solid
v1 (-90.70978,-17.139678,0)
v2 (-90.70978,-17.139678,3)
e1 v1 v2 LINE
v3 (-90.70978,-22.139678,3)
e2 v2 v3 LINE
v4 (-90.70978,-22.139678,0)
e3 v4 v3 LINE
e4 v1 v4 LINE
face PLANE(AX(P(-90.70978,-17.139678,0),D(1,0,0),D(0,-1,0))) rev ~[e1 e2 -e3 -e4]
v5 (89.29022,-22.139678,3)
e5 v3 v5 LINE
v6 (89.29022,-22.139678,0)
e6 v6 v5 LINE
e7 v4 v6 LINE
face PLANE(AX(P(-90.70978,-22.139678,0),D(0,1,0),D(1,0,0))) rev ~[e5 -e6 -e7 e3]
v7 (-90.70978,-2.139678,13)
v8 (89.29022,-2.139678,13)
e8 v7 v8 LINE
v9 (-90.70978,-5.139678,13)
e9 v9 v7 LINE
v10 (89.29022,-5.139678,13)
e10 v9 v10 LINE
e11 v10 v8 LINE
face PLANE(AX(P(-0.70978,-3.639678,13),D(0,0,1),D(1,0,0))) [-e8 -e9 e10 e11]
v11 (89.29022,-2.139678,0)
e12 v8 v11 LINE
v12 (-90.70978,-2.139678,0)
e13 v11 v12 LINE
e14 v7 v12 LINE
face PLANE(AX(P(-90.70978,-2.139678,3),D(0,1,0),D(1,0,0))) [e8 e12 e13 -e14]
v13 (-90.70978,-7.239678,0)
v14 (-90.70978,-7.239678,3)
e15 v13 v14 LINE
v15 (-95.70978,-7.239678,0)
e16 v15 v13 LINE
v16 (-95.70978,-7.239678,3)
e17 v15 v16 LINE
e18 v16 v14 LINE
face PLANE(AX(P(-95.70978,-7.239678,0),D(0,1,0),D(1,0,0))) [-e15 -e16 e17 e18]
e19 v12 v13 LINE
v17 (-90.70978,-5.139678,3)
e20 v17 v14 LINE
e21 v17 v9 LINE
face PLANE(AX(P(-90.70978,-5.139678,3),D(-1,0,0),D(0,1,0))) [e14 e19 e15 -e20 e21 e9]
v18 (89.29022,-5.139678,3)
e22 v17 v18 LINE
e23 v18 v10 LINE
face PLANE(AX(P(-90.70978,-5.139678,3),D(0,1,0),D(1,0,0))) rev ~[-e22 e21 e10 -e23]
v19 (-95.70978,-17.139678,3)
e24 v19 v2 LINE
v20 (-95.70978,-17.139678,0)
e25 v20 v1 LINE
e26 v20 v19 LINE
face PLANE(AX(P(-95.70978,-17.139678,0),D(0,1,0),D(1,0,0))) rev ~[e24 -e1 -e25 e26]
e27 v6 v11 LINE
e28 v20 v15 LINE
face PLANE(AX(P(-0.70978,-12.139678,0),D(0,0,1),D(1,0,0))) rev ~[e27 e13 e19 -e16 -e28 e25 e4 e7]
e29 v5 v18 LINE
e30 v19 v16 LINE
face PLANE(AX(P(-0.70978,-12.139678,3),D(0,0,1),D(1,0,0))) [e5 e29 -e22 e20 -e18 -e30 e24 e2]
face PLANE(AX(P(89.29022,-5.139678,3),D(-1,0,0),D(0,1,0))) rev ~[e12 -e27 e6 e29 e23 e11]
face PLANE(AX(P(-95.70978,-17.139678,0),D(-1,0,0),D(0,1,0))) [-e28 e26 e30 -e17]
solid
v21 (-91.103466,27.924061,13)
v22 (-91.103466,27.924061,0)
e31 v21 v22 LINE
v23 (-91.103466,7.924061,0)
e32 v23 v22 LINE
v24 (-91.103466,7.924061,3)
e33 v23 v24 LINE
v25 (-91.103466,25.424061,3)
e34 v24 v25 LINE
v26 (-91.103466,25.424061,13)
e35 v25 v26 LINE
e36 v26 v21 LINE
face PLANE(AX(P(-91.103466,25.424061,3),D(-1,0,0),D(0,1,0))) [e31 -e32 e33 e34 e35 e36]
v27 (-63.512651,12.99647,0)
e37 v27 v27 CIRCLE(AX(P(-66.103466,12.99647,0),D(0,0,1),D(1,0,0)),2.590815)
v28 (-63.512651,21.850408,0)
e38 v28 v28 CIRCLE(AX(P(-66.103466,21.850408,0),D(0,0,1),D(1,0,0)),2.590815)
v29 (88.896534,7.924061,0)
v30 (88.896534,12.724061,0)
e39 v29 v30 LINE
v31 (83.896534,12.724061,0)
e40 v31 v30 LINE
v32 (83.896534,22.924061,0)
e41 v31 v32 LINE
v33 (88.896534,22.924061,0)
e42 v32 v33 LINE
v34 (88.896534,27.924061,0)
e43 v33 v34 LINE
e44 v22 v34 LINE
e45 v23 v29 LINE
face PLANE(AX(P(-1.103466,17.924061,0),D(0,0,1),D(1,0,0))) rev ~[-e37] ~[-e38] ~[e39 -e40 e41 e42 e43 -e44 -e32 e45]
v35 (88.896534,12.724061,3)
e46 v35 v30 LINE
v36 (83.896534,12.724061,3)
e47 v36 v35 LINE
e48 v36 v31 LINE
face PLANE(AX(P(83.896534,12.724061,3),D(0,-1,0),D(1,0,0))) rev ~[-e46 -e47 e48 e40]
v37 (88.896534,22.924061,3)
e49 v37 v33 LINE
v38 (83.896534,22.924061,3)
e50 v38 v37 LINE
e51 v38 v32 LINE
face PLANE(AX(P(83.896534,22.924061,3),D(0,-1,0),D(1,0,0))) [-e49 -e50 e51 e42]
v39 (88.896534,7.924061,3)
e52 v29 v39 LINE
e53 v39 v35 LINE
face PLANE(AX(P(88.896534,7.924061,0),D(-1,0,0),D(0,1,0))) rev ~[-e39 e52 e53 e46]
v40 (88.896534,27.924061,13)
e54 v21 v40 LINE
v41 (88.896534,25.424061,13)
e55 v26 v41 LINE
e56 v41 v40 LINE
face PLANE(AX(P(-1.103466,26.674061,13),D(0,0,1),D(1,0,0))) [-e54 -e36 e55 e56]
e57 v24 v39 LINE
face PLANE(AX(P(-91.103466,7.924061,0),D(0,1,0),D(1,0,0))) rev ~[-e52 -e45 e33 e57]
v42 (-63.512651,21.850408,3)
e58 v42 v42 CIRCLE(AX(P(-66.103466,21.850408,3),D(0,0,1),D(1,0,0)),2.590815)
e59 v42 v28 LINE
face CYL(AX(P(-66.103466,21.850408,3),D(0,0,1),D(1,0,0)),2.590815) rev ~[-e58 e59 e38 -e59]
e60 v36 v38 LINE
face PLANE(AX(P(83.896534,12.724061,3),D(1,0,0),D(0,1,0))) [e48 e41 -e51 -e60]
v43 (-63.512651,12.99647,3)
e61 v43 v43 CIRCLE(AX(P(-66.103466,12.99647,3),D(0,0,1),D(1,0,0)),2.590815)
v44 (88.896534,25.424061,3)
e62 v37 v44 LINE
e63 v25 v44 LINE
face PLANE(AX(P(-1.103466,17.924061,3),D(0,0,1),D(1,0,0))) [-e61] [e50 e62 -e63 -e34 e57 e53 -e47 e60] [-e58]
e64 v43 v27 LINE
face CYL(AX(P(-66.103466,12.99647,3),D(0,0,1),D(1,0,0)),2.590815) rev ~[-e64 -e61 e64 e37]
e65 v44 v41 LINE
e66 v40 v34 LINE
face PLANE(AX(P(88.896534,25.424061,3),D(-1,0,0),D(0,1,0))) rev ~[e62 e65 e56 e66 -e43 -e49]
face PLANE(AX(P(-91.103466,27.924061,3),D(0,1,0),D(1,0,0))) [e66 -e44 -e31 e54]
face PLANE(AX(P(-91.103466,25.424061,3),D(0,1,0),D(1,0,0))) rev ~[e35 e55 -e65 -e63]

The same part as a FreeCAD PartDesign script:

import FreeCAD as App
import Part
import Sketcher

V = App.Vector
Q = App.Units.Quantity

doc = App.newDocument("Part")
params = doc.addObject("Spreadsheet::Sheet", "Params")
for row, (alias, value) in enumerate([
    ("sketch1_width", "180 mm"),
    ("sketch1_width2", "5 mm"),
    ("sketch1_height", "20 mm"),
    ("sketch1_height2", "5.1 mm"),
    ("pad1_length", "3 mm"),
    ("sketch2_width", "5 mm"),
    ("sketch2_height", "10.2 mm"),
    ("pocket1_length", "3 mm"),
    ("sketch3_width", "180 mm"),
    ("sketch3_height", "2.5 mm"),
    ("pad2_length", "10 mm"),
    ("sketch4_width", "180 mm"),
    ("sketch4_height", "3 mm"),
    ("pad3_length", "10 mm"),
    ("pocket2_length", "3 mm"),
], start=1):
    params.set(f"A{row}", alias)
    params.set(f"B{row}", "=" + value)
    params.setAlias(f"B{row}", alias)

body = doc.addObject("PartDesign::Body", "Body")
body.AllowCompound = True

sketch1 = body.newObject("Sketcher::SketchObject", "Sketch")
sketch1.AttachmentSupport = (doc.getObject("XY_Plane"), [""])
sketch1.MapMode = "FlatFace"
sketch1.addGeometry(Part.LineSegment(V(-91, 28, 0), V(-91, 8, 0)), False)
sketch1.addGeometry(Part.LineSegment(V(-91, 8, 0), V(89, 8, 0)), False)
sketch1.addGeometry(Part.LineSegment(V(89, 8, 0), V(89, 28, 0)), False)
sketch1.addGeometry(Part.LineSegment(V(89, 28, 0), V(-91, 28, 0)), False)
sketch1.addGeometry(Part.LineSegment(V(89, -2, 0), V(-91, -2, 0)), False)
sketch1.addGeometry(Part.LineSegment(V(-91, -2, 0), V(-91, -7, 0)), False)
sketch1.addGeometry(Part.LineSegment(V(-91, -7, 0), V(-96, -7, 0)), False)
sketch1.addGeometry(Part.LineSegment(V(-96, -7, 0), V(-96, -17, 0)), False)
sketch1.addGeometry(Part.LineSegment(V(-96, -17, 0), V(-91, -17, 0)), False)
sketch1.addGeometry(Part.LineSegment(V(-91, -17, 0), V(-91, -22, 0)), False)
sketch1.addGeometry(Part.LineSegment(V(-91, -22, 0), V(89, -22, 0)), False)
sketch1.addGeometry(Part.LineSegment(V(89, -22, 0), V(89, -2, 0)), False)
sketch1.addConstraint(Sketcher.Constraint("Coincident", 0, 2, 1, 1))
sketch1.addConstraint(Sketcher.Constraint("Coincident", 1, 2, 2, 1))
sketch1.addConstraint(Sketcher.Constraint("Coincident", 2, 2, 3, 1))
sketch1.addConstraint(Sketcher.Constraint("Coincident", 3, 2, 0, 1))
sketch1.addConstraint(Sketcher.Constraint("Coincident", 4, 2, 5, 1))
sketch1.addConstraint(Sketcher.Constraint("Coincident", 5, 2, 6, 1))
sketch1.addConstraint(Sketcher.Constraint("Coincident", 6, 2, 7, 1))
sketch1.addConstraint(Sketcher.Constraint("Coincident", 7, 2, 8, 1))
sketch1.addConstraint(Sketcher.Constraint("Coincident", 8, 2, 9, 1))
sketch1.addConstraint(Sketcher.Constraint("Coincident", 9, 2, 10, 1))
sketch1.addConstraint(Sketcher.Constraint("Coincident", 10, 2, 11, 1))
sketch1.addConstraint(Sketcher.Constraint("Coincident", 11, 2, 4, 1))
sketch1.addConstraint(Sketcher.Constraint("Vertical", 0))
sketch1.addConstraint(Sketcher.Constraint("Horizontal", 1))
sketch1.addConstraint(Sketcher.Constraint("Vertical", 2))
sketch1.addConstraint(Sketcher.Constraint("Horizontal", 3))
sketch1.addConstraint(Sketcher.Constraint("Horizontal", 4))
sketch1.addConstraint(Sketcher.Constraint("Vertical", 5))
sketch1.addConstraint(Sketcher.Constraint("Horizontal", 6))
sketch1.addConstraint(Sketcher.Constraint("Vertical", 7))
sketch1.addConstraint(Sketcher.Constraint("Horizontal", 8))
sketch1.addConstraint(Sketcher.Constraint("Vertical", 9))
sketch1.addConstraint(Sketcher.Constraint("Horizontal", 10))
sketch1.addConstraint(Sketcher.Constraint("Vertical", 11))
sketch1.addConstraint(Sketcher.Constraint("Vertical", 5, 2, 8, 2))
sketch1.addConstraint(Sketcher.Constraint("Equal", 3, 4))
sketch1.addConstraint(Sketcher.Constraint("Equal", 8, 9))
sketch1.addConstraint(Sketcher.Constraint("Equal", 2, 11))
sketch1.addConstraint(Sketcher.Constraint("DistanceX", 1, 1, 1, 2, Q("180 mm")))
sketch1.addConstraint(Sketcher.Constraint("DistanceX", 6, 2, 6, 1, Q("5 mm")))
sketch1.addConstraint(Sketcher.Constraint("DistanceY", 0, 2, 0, 1, Q("20 mm")))
sketch1.addConstraint(Sketcher.Constraint("DistanceY", 5, 2, 5, 1, Q("5.1 mm")))
sketch1.addConstraint(Sketcher.Constraint("DistanceY", -1, 1, 0, 2, Q("7.924061 mm")))
sketch1.addConstraint(Sketcher.Constraint("DistanceX", 4, 2, -1, 1, Q("90.70978 mm")))
sketch1.addConstraint(Sketcher.Constraint("DistanceY", 4, 2, -1, 1, Q("2.139678 mm")))
sketch1.addConstraint(Sketcher.Constraint("DistanceX", 0, 2, -1, 1, Q("91.103466 mm")))
sketch1.setExpression("Constraints[28]", "Params.sketch1_width")
sketch1.setExpression("Constraints[29]", "Params.sketch1_width2")
sketch1.setExpression("Constraints[30]", "Params.sketch1_height")
sketch1.setExpression("Constraints[31]", "Params.sketch1_height2")
pad1 = body.newObject("PartDesign::Pad", "Pad")
pad1.Profile = sketch1
pad1.setExpression("Length", "Params.pad1_length")

sketch2 = body.newObject("Sketcher::SketchObject", "Sketch001")
sketch2.AttachmentSupport = (doc.getObject("XY_Plane"), [""])
sketch2.MapMode = "FlatFace"
sketch2.AttachmentOffset = App.Placement(V(0, 0, 3), App.Rotation())
sketch2.addGeometry(Part.LineSegment(V(84, 23, 0), V(84, 13, 0)), False)
sketch2.addGeometry(Part.LineSegment(V(84, 13, 0), V(89, 13, 0)), False)
sketch2.addGeometry(Part.LineSegment(V(89, 13, 0), V(89, 23, 0)), False)
sketch2.addGeometry(Part.LineSegment(V(89, 23, 0), V(84, 23, 0)), False)
sketch2.addConstraint(Sketcher.Constraint("Coincident", 0, 2, 1, 1))
sketch2.addConstraint(Sketcher.Constraint("Coincident", 1, 2, 2, 1))
sketch2.addConstraint(Sketcher.Constraint("Coincident", 2, 2, 3, 1))
sketch2.addConstraint(Sketcher.Constraint("Coincident", 3, 2, 0, 1))
sketch2.addConstraint(Sketcher.Constraint("Vertical", 0))
sketch2.addConstraint(Sketcher.Constraint("Horizontal", 1))
sketch2.addConstraint(Sketcher.Constraint("Vertical", 2))
sketch2.addConstraint(Sketcher.Constraint("Horizontal", 3))
sketch2.addConstraint(Sketcher.Constraint("DistanceX", 1, 1, 1, 2, Q("5 mm")))
sketch2.addConstraint(Sketcher.Constraint("DistanceY", 0, 2, 0, 1, Q("10.2 mm")))
sketch2.addConstraint(Sketcher.Constraint("DistanceY", -1, 1, 0, 2, Q("12.724061 mm")))
sketch2.addConstraint(Sketcher.Constraint("DistanceX", -1, 1, 0, 2, Q("83.896534 mm")))
sketch2.setExpression("Constraints[8]", "Params.sketch2_width")
sketch2.setExpression("Constraints[9]", "Params.sketch2_height")
pocket1 = body.newObject("PartDesign::Pocket", "Pocket")
pocket1.Profile = sketch2
pocket1.setExpression("Length", "Params.pocket1_length")

sketch3 = body.newObject("Sketcher::SketchObject", "Sketch002")
sketch3.AttachmentSupport = (doc.getObject("XY_Plane"), [""])
sketch3.MapMode = "FlatFace"
sketch3.AttachmentOffset = App.Placement(V(0, 0, 3), App.Rotation())
sketch3.addGeometry(Part.LineSegment(V(-91.1, 27.9, 0), V(-91.1, 25.4, 0)), False)
sketch3.addGeometry(Part.LineSegment(V(-91.1, 25.4, 0), V(88.9, 25.4, 0)), False)
sketch3.addGeometry(Part.LineSegment(V(88.9, 25.4, 0), V(88.9, 27.9, 0)), False)
sketch3.addGeometry(Part.LineSegment(V(88.9, 27.9, 0), V(-91.1, 27.9, 0)), False)
sketch3.addConstraint(Sketcher.Constraint("Coincident", 0, 2, 1, 1))
sketch3.addConstraint(Sketcher.Constraint("Coincident", 1, 2, 2, 1))
sketch3.addConstraint(Sketcher.Constraint("Coincident", 2, 2, 3, 1))
sketch3.addConstraint(Sketcher.Constraint("Coincident", 3, 2, 0, 1))
sketch3.addConstraint(Sketcher.Constraint("Vertical", 0))
sketch3.addConstraint(Sketcher.Constraint("Horizontal", 1))
sketch3.addConstraint(Sketcher.Constraint("Vertical", 2))
sketch3.addConstraint(Sketcher.Constraint("Horizontal", 3))
sketch3.addConstraint(Sketcher.Constraint("DistanceX", 1, 1, 1, 2, Q("180 mm")))
sketch3.addConstraint(Sketcher.Constraint("DistanceY", 0, 2, 0, 1, Q("2.5 mm")))
sketch3.addConstraint(Sketcher.Constraint("DistanceY", -1, 1, 0, 2, Q("25.424061 mm")))
sketch3.addConstraint(Sketcher.Constraint("DistanceX", 0, 2, -1, 1, Q("91.103466 mm")))
sketch3.setExpression("Constraints[8]", "Params.sketch3_width")
sketch3.setExpression("Constraints[9]", "Params.sketch3_height")
pad2 = body.newObject("PartDesign::Pad", "Pad001")
pad2.Profile = sketch3
pad2.setExpression("Length", "Params.pad2_length")

sketch4 = body.newObject("Sketcher::SketchObject", "Sketch003")
sketch4.AttachmentSupport = (doc.getObject("XY_Plane"), [""])
sketch4.MapMode = "FlatFace"
sketch4.AttachmentOffset = App.Placement(V(0, 0, 3), App.Rotation())
sketch4.addGeometry(Part.LineSegment(V(-90.7, -2.1, 0), V(-90.7, -5.1, 0)), False)
sketch4.addGeometry(Part.LineSegment(V(-90.7, -5.1, 0), V(89.3, -5.1, 0)), False)
sketch4.addGeometry(Part.LineSegment(V(89.3, -5.1, 0), V(89.3, -2.1, 0)), False)
sketch4.addGeometry(Part.LineSegment(V(89.3, -2.1, 0), V(-90.7, -2.1, 0)), False)
sketch4.addConstraint(Sketcher.Constraint("Coincident", 0, 2, 1, 1))
sketch4.addConstraint(Sketcher.Constraint("Coincident", 1, 2, 2, 1))
sketch4.addConstraint(Sketcher.Constraint("Coincident", 2, 2, 3, 1))
sketch4.addConstraint(Sketcher.Constraint("Coincident", 3, 2, 0, 1))
sketch4.addConstraint(Sketcher.Constraint("Vertical", 0))
sketch4.addConstraint(Sketcher.Constraint("Horizontal", 1))
sketch4.addConstraint(Sketcher.Constraint("Vertical", 2))
sketch4.addConstraint(Sketcher.Constraint("Horizontal", 3))
sketch4.addConstraint(Sketcher.Constraint("DistanceX", 1, 1, 1, 2, Q("180 mm")))
sketch4.addConstraint(Sketcher.Constraint("DistanceY", 0, 2, 0, 1, Q("3 mm")))
sketch4.addConstraint(Sketcher.Constraint("DistanceX", 0, 2, -1, 1, Q("90.70978 mm")))
sketch4.addConstraint(Sketcher.Constraint("DistanceY", 2, 2, -1, 1, Q("2.139678 mm")))
sketch4.setExpression("Constraints[8]", "Params.sketch4_width")
sketch4.setExpression("Constraints[9]", "Params.sketch4_height")
pad3 = body.newObject("PartDesign::Pad", "Pad002")
pad3.Profile = sketch4
pad3.setExpression("Length", "Params.pad3_length")

sketch5 = body.newObject("Sketcher::SketchObject", "Sketch004")
sketch5.AttachmentSupport = (doc.getObject("XY_Plane"), [""])
sketch5.MapMode = "FlatFace"
sketch5.AttachmentOffset = App.Placement(V(0, 0, 3), App.Rotation())
sketch5.addGeometry(Part.Circle(V(-66.1, 21.9, 0), V(0, 0, 1), 2.6), False)
sketch5.addGeometry(Part.Circle(V(-66.1, 13, 0), V(0, 0, 1), 2.6), False)
sketch5.addConstraint(Sketcher.Constraint("Equal", 0, 1))
sketch5.addConstraint(Sketcher.Constraint("Vertical", 0, 3, 1, 3))
sketch5.addConstraint(Sketcher.Constraint("Diameter", 0, Q("5.18163 mm")))
sketch5.addConstraint(Sketcher.Constraint("DistanceY", -1, 1, 0, 3, Q("21.850408 mm")))
sketch5.addConstraint(Sketcher.Constraint("DistanceY", -1, 1, 1, 3, Q("12.99647 mm")))
sketch5.addConstraint(Sketcher.Constraint("DistanceX", 0, 3, -1, 1, Q("66.103466 mm")))
pocket2 = body.newObject("PartDesign::Pocket", "Pocket001")
pocket2.Profile = sketch5
pocket2.setExpression("Length", "Params.pocket2_length")

doc.recompute()
